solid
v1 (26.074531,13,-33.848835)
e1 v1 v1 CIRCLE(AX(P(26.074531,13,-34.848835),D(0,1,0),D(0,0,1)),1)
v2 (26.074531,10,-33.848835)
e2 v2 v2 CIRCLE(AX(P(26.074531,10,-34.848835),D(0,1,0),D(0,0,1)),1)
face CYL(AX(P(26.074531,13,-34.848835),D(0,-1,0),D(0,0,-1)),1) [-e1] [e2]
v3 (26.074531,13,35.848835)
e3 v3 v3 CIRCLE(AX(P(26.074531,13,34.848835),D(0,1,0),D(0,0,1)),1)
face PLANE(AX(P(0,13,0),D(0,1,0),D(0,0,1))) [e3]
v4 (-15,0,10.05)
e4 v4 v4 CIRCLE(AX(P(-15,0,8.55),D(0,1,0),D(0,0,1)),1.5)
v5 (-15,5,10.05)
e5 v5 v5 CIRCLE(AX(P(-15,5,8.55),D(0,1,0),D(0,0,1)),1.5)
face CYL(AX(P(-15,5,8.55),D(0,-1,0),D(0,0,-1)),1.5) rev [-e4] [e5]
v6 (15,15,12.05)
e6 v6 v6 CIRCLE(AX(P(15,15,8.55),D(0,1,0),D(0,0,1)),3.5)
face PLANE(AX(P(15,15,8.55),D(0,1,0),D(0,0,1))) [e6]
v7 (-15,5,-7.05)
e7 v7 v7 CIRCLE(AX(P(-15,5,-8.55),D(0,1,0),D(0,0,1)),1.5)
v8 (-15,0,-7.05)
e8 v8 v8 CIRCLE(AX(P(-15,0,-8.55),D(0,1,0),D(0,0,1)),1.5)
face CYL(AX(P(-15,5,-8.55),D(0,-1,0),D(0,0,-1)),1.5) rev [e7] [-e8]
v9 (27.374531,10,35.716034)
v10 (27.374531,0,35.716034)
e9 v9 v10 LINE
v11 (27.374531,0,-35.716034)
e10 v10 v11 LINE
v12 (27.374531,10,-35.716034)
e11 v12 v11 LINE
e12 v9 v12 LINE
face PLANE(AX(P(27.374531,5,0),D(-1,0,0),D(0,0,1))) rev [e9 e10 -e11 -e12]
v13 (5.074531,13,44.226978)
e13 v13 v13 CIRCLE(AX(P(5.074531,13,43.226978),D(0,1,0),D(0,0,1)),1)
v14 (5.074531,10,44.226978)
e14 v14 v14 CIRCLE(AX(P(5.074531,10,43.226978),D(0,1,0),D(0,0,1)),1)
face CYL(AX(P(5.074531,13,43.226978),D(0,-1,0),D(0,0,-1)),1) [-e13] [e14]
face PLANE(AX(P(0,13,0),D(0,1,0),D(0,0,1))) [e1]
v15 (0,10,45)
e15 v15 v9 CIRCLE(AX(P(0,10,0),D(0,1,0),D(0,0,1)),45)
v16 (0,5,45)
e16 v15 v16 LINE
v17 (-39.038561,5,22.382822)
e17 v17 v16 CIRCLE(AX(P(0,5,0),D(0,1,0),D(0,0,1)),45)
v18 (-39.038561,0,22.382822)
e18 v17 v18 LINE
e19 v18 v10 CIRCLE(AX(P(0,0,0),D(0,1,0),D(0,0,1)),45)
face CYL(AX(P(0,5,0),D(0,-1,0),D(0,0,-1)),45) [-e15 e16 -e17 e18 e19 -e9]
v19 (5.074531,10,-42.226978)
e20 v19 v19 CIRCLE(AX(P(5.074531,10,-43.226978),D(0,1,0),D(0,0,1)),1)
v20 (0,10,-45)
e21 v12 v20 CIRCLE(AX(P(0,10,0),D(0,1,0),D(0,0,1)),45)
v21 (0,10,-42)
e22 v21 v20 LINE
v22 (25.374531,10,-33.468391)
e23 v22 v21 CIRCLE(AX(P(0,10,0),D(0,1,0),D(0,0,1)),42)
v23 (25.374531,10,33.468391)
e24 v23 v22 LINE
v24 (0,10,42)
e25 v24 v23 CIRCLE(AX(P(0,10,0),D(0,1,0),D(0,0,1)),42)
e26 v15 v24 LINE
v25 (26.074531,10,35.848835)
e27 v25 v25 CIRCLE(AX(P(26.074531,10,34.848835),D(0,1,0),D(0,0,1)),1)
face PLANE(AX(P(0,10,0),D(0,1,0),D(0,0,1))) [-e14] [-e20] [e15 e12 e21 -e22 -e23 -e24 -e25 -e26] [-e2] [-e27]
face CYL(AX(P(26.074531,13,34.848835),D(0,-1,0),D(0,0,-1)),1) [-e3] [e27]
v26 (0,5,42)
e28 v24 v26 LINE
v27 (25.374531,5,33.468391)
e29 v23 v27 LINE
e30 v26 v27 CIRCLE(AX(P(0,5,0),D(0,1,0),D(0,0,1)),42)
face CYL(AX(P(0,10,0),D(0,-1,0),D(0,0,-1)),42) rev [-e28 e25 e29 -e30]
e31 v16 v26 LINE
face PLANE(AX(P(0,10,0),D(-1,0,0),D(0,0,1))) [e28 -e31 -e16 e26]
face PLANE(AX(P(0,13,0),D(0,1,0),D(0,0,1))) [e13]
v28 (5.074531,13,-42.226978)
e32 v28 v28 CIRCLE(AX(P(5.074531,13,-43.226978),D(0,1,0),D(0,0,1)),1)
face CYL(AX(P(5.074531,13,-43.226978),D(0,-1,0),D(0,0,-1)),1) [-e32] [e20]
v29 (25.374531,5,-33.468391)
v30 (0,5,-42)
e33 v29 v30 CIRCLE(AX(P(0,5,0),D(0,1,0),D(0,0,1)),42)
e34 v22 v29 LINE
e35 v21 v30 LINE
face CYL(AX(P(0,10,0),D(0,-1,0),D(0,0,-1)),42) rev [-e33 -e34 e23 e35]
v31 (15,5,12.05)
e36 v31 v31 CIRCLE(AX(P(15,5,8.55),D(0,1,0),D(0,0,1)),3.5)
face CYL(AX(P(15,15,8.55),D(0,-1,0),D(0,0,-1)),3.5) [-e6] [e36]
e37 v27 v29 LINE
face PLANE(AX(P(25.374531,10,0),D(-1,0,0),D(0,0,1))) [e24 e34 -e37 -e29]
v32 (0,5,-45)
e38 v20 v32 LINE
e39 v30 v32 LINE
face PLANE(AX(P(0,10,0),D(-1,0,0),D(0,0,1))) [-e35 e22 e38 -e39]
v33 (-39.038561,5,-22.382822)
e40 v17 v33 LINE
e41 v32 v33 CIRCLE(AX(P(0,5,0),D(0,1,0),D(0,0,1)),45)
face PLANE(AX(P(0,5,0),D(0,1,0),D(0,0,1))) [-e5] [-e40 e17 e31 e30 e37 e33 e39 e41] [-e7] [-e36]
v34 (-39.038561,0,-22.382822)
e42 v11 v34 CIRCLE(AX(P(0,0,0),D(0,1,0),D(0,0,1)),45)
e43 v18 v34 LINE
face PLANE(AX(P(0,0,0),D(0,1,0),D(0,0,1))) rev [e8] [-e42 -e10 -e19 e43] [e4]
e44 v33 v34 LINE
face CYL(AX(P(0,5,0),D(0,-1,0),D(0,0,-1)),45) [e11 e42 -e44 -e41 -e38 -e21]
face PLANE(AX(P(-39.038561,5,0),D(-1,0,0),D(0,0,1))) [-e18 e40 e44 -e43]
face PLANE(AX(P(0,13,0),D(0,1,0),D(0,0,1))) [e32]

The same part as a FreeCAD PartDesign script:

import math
import FreeCAD as App
import Part
import Sketcher
from FreeCAD import Vector

doc = App.newDocument("Part")
body = doc.addObject("PartDesign::Body", "Body")

# Sketch on XZ plane
sketch1 = body.newObject("Sketcher::SketchObject", "Sketch")
sketch1.AttachmentSupport = (doc.getObject("XZ_Plane"), [""])
sketch1.MapMode = "FlatFace"
sketch1.addGeometry([
    Part.LineSegment(Vector(-39, -22.4, 0), Vector(-39, 22.4, 0)),  # 0
    Part.ArcOfCircle(Part.Circle(Vector(0, 0, 0), Vector(0, 0, 1), 45), math.radians(53), math.radians(150)),  # 1
    Part.LineSegment(Vector(27.4, 35.7, 0), Vector(27.4, -35.7, 0)),  # 2
    Part.ArcOfCircle(Part.Circle(Vector(0, 0, 0), Vector(0, 0, 1), 45), math.radians(-150), math.radians(-53)),  # 3
    Part.Circle(Vector(-15, 8.6, 0), Vector(0, 0, 1), 1.5),  # 4
    Part.Circle(Vector(-15, -8.6, 0), Vector(0, 0, 1), 1.5),  # 5
], False)
sketch1.addConstraint([
    Sketcher.Constraint("Coincident", 0, 2, 1, 2),
    Sketcher.Constraint("Coincident", 1, 1, 2, 1),
    Sketcher.Constraint("Coincident", 2, 2, 3, 2),
    Sketcher.Constraint("Coincident", 3, 1, 0, 1),
    Sketcher.Constraint("Vertical", 0),
    Sketcher.Constraint("Vertical", 2),
    Sketcher.Constraint("Coincident", 1, 3, -1, 1),
    Sketcher.Constraint("Coincident", 3, 3, -1, 1),
    Sketcher.Constraint("Equal", 1, 3),
    Sketcher.Constraint("Equal", 4, 5),
    Sketcher.Constraint("Symmetric", 4, 3, 5, 3, -1),
    Sketcher.Constraint("Diameter", 4, 3.0),
    Sketcher.Constraint("Radius", 1, 45.0),
    Sketcher.Constraint("DistanceX", 4, 3, -1, 1, 15.0),
    Sketcher.Constraint("DistanceY", 5, 3, 4, 3, 17.1),
    Sketcher.Constraint("DistanceY", 0, 1, 0, 2, 44.765644),
    Sketcher.Constraint("DistanceY", 2, 2, 2, 1, 71.432067),
])
pad1 = body.newObject("PartDesign::Pad", "Pad")
pad1.Profile = sketch1
pad1.Length = 5
pad1.Reversed = True

# Sketch on XZ plane
sketch2 = body.newObject("Sketcher::SketchObject", "Sketch001")
sketch2.AttachmentSupport = (doc.getObject("XZ_Plane"), [""])
sketch2.MapMode = "FlatFace"
sketch2.AttachmentOffset = App.Placement(Vector(0, 0, -5), App.Rotation())
sketch2.addGeometry(Part.Circle(Vector(15, 8.6, 0), Vector(0, 0, 1), 3.5), False)
sketch2.addConstraint([
    Sketcher.Constraint("Diameter", 0, 7.0),
    Sketcher.Constraint("DistanceX", -1, 1, 0, 3, 15.0),
    Sketcher.Constraint("DistanceY", -1, 1, 0, 3, 8.55),
])
pad2 = body.newObject("PartDesign::Pad", "Pad001")
pad2.Profile = sketch2
pad2.Length = 10
pad2.Reversed = True

# Sketch on XZ plane
sketch3 = body.newObject("Sketcher::SketchObject", "Sketch002")
sketch3.AttachmentSupport = (doc.getObject("XZ_Plane"), [""])
sketch3.MapMode = "FlatFace"
sketch3.AttachmentOffset = App.Placement(Vector(0, 0, -5), App.Rotation())
sketch3.addGeometry([
    Part.ArcOfCircle(Part.Circle(Vector(0, 0, 0), Vector(0, 0, 1), 45), math.radians(56), math.radians(90)),  # 0
    Part.ArcOfCircle(Part.Circle(Vector(0, 0, 0), Vector(0, 0, 1), 45), math.radians(52.53), math.radians(55.68)),  # 1
    Part.LineSegment(Vector(27.4, 35.7, 0), Vector(27.4, -35.7, 0)),  # 2
    Part.ArcOfCircle(Part.Circle(Vector(0, 0, 0), Vector(0, 0, 1), 45), math.radians(-55.68), math.radians(-52.53)),  # 3
    Part.ArcOfCircle(Part.Circle(Vector(0, 0, 0), Vector(0, 0, 1), 45), math.radians(-90), math.radians(-56)),  # 4
    Part.LineSegment(Vector(0, -45, 0), Vector(0, -42, 0)),  # 5
    Part.ArcOfCircle(Part.Circle(Vector(0, 0, 0), Vector(0, 0, 1), 42), math.radians(-90), math.radians(-53)),  # 6
    Part.LineSegment(Vector(25.4, -33.5, 0), Vector(25.4, 33.5, 0)),  # 7
    Part.ArcOfCircle(Part.Circle(Vector(0, 0, 0), Vector(0, 0, 1), 42), math.radians(53), math.radians(90)),  # 8
    Part.LineSegment(Vector(0, 42, 0), Vector(0, 45, 0)),  # 9
], False)
sketch3.addConstraint([
    Sketcher.Constraint("Tangent", 0, 1, 1, 2),
    Sketcher.Constraint("Coincident", 1, 1, 2, 1),
    Sketcher.Constraint("Coincident", 2, 2, 3, 2),
    Sketcher.Constraint("Tangent", 3, 1, 4, 2),
    Sketcher.Constraint("Coincident", 4, 1, 5, 1),
    Sketcher.Constraint("Coincident", 5, 2, 6, 1),
    Sketcher.Constraint("Coincident", 6, 2, 7, 1),
    Sketcher.Constraint("Coincident", 7, 2, 8, 1),
    Sketcher.Constraint("Coincident", 8, 2, 9, 1),
    Sketcher.Constraint("Coincident", 9, 2, 0, 2),
    Sketcher.Constraint("Vertical", 2),
    Sketcher.Constraint("Vertical", 5),
    Sketcher.Constraint("Vertical", 7),
    Sketcher.Constraint("Vertical", 9),
    Sketcher.Constraint("Coincident", 0, 3, -1, 1),
    Sketcher.Constraint("Coincident", 3, 3, -1, 1),
    Sketcher.Constraint("Coincident", 6, 3, -1, 1),
    Sketcher.Constraint("Coincident", 8, 3, -1, 1),
    Sketcher.Constraint("Equal", 0, 1),
    Sketcher.Constraint("Equal", 1, 3),
    Sketcher.Constraint("Equal", 3, 4),
    Sketcher.Constraint("Equal", 6, 8),
    Sketcher.Constraint("PointOnObject", 4, 1, -2),
    Sketcher.Constraint("PointOnObject", 8, 2, -2),
    Sketcher.Constraint("Vertical", 0, 1, 3, 1),
    Sketcher.Constraint("Vertical", 3, 1, 6, 2),
    Sketcher.Constraint("Radius", 0, 45.0),
    Sketcher.Constraint("Radius", 6, 42.0),
    Sketcher.Constraint("DistanceX", 0, 1, 1, 1, 2.0),
    Sketcher.Constraint("DistanceY", 7, 1, 7, 2, 66.936782),
])
pad3 = body.newObject("PartDesign::Pad", "Pad002")
pad3.Profile = sketch3
pad3.Length = 5
pad3.Reversed = True

# Sketch on XZ plane
sketch4 = body.newObject("Sketcher::SketchObject", "Sketch003")
sketch4.AttachmentSupport = (doc.getObject("XZ_Plane"), [""])
sketch4.MapMode = "FlatFace"
sketch4.AttachmentOffset = App.Placement(Vector(0, 0, -10), App.Rotation())
sketch4.addGeometry([
    Part.Circle(Vector(26.1, 34.8, 0), Vector(0, 0, 1), 1),
    Part.Circle(Vector(5.1, 43.2, 0), Vector(0, 0, 1), 1),
    Part.Circle(Vector(26.1, -34.8, 0), Vector(0, 0, 1), 1),
    Part.Circle(Vector(5.1, -43.2, 0), Vector(0, 0, 1), 1),
], False)
sketch4.addConstraint([
    Sketcher.Constraint("Equal", 0, 1),
    Sketcher.Constraint("Equal", 1, 2),
    Sketcher.Constraint("Equal", 2, 3),
    Sketcher.Constraint("Symmetric", 0, 3, 2, 3, -1),
    Sketcher.Constraint("Symmetric", 1, 3, 3, 3, -1),
    Sketcher.Constraint("Diameter", 0, 2.0),
    Sketcher.Constraint("DistanceX", 1, 3, 0, 3, 21.0),
    Sketcher.Constraint("DistanceX", -1, 1, 0, 3, 26.074531),
    Sketcher.Constraint("DistanceY", 2, 3, 0, 3, 69.697671),
    Sketcher.Constraint("DistanceY", -1, 1, 1, 3, 43.226978),
])
pad4 = body.newObject("PartDesign::Pad", "Pad003")
pad4.Profile = sketch4
pad4.Length = 3
pad4.Reversed = True

doc.recompute()
